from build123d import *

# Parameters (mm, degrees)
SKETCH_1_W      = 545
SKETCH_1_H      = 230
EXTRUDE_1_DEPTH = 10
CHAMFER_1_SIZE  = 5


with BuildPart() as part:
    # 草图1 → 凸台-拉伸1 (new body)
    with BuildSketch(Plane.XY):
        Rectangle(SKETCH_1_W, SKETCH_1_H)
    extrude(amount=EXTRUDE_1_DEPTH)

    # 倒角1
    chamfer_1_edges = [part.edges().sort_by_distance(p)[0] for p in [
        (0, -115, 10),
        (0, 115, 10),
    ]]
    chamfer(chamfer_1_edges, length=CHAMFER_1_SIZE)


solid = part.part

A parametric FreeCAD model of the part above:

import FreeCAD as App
import Part
import Sketcher

V = App.Vector
Q = App.Units.Quantity


def edges_at(feature, points):
    """Names of the edges that pass closest to the given points."""
    edges = feature.Shape.Edges
    near = lambda p: min(range(len(edges)), key=lambda i: edges[i].distToShape(Part.Vertex(*p))[0])
    return sorted({f"Edge{near(p) + 1}" for p in points})

doc = App.newDocument("Part")
body = doc.addObject("PartDesign::Body", "Body")

# Sketch on XY plane
sketch1 = doc.addObject("Sketcher::SketchObject", "Sketch")
body.addObject(sketch1)
sketch1.AttachmentSupport = (doc.XY_Plane, [""])
sketch1.MapMode = "FlatFace"
sketch1.addGeometry([
    Part.LineSegment(V(-272.5, 115, 0), V(-272.5, -115, 0)),
    Part.LineSegment(V(-272.5, -115, 0), V(272.5, -115, 0)),
    Part.LineSegment(V(272.5, -115, 0), V(272.5, 115, 0)),
    Part.LineSegment(V(272.5, 115, 0), V(-272.5, 115, 0)),
], False)
sketch1.addConstraint([
    Sketcher.Constraint("Coincident", 0, 2, 1, 1),
    Sketcher.Constraint("Coincident", 1, 2, 2, 1),
    Sketcher.Constraint("Coincident", 2, 2, 3, 1),
    Sketcher.Constraint("Coincident", 3, 2, 0, 1),
    Sketcher.Constraint("Vertical", 0),
    Sketcher.Constraint("Horizontal", 1),
    Sketcher.Constraint("Vertical", 2),
    Sketcher.Constraint("Horizontal", 3),
    Sketcher.Constraint("Symmetric", 0, 2, 2, 2, -1, 1),
    Sketcher.Constraint("DistanceX", 1, 1, 1, 2, Q("545 mm")),
    Sketcher.Constraint("DistanceY", 0, 2, 0, 1, Q("230 mm")),
])
pad1 = doc.addObject("PartDesign::Pad", "Pad")
body.addObject(pad1)
pad1.Profile = sketch1
pad1.Length = 10
doc.recompute()

chamfer = doc.addObject("PartDesign::Chamfer", "Chamfer")
body.addObject(chamfer)
chamfer.Base = (pad1, edges_at(pad1, [(0, -115, 10), (0, 115, 10)]))
chamfer.Size = 5

doc.recompute()
